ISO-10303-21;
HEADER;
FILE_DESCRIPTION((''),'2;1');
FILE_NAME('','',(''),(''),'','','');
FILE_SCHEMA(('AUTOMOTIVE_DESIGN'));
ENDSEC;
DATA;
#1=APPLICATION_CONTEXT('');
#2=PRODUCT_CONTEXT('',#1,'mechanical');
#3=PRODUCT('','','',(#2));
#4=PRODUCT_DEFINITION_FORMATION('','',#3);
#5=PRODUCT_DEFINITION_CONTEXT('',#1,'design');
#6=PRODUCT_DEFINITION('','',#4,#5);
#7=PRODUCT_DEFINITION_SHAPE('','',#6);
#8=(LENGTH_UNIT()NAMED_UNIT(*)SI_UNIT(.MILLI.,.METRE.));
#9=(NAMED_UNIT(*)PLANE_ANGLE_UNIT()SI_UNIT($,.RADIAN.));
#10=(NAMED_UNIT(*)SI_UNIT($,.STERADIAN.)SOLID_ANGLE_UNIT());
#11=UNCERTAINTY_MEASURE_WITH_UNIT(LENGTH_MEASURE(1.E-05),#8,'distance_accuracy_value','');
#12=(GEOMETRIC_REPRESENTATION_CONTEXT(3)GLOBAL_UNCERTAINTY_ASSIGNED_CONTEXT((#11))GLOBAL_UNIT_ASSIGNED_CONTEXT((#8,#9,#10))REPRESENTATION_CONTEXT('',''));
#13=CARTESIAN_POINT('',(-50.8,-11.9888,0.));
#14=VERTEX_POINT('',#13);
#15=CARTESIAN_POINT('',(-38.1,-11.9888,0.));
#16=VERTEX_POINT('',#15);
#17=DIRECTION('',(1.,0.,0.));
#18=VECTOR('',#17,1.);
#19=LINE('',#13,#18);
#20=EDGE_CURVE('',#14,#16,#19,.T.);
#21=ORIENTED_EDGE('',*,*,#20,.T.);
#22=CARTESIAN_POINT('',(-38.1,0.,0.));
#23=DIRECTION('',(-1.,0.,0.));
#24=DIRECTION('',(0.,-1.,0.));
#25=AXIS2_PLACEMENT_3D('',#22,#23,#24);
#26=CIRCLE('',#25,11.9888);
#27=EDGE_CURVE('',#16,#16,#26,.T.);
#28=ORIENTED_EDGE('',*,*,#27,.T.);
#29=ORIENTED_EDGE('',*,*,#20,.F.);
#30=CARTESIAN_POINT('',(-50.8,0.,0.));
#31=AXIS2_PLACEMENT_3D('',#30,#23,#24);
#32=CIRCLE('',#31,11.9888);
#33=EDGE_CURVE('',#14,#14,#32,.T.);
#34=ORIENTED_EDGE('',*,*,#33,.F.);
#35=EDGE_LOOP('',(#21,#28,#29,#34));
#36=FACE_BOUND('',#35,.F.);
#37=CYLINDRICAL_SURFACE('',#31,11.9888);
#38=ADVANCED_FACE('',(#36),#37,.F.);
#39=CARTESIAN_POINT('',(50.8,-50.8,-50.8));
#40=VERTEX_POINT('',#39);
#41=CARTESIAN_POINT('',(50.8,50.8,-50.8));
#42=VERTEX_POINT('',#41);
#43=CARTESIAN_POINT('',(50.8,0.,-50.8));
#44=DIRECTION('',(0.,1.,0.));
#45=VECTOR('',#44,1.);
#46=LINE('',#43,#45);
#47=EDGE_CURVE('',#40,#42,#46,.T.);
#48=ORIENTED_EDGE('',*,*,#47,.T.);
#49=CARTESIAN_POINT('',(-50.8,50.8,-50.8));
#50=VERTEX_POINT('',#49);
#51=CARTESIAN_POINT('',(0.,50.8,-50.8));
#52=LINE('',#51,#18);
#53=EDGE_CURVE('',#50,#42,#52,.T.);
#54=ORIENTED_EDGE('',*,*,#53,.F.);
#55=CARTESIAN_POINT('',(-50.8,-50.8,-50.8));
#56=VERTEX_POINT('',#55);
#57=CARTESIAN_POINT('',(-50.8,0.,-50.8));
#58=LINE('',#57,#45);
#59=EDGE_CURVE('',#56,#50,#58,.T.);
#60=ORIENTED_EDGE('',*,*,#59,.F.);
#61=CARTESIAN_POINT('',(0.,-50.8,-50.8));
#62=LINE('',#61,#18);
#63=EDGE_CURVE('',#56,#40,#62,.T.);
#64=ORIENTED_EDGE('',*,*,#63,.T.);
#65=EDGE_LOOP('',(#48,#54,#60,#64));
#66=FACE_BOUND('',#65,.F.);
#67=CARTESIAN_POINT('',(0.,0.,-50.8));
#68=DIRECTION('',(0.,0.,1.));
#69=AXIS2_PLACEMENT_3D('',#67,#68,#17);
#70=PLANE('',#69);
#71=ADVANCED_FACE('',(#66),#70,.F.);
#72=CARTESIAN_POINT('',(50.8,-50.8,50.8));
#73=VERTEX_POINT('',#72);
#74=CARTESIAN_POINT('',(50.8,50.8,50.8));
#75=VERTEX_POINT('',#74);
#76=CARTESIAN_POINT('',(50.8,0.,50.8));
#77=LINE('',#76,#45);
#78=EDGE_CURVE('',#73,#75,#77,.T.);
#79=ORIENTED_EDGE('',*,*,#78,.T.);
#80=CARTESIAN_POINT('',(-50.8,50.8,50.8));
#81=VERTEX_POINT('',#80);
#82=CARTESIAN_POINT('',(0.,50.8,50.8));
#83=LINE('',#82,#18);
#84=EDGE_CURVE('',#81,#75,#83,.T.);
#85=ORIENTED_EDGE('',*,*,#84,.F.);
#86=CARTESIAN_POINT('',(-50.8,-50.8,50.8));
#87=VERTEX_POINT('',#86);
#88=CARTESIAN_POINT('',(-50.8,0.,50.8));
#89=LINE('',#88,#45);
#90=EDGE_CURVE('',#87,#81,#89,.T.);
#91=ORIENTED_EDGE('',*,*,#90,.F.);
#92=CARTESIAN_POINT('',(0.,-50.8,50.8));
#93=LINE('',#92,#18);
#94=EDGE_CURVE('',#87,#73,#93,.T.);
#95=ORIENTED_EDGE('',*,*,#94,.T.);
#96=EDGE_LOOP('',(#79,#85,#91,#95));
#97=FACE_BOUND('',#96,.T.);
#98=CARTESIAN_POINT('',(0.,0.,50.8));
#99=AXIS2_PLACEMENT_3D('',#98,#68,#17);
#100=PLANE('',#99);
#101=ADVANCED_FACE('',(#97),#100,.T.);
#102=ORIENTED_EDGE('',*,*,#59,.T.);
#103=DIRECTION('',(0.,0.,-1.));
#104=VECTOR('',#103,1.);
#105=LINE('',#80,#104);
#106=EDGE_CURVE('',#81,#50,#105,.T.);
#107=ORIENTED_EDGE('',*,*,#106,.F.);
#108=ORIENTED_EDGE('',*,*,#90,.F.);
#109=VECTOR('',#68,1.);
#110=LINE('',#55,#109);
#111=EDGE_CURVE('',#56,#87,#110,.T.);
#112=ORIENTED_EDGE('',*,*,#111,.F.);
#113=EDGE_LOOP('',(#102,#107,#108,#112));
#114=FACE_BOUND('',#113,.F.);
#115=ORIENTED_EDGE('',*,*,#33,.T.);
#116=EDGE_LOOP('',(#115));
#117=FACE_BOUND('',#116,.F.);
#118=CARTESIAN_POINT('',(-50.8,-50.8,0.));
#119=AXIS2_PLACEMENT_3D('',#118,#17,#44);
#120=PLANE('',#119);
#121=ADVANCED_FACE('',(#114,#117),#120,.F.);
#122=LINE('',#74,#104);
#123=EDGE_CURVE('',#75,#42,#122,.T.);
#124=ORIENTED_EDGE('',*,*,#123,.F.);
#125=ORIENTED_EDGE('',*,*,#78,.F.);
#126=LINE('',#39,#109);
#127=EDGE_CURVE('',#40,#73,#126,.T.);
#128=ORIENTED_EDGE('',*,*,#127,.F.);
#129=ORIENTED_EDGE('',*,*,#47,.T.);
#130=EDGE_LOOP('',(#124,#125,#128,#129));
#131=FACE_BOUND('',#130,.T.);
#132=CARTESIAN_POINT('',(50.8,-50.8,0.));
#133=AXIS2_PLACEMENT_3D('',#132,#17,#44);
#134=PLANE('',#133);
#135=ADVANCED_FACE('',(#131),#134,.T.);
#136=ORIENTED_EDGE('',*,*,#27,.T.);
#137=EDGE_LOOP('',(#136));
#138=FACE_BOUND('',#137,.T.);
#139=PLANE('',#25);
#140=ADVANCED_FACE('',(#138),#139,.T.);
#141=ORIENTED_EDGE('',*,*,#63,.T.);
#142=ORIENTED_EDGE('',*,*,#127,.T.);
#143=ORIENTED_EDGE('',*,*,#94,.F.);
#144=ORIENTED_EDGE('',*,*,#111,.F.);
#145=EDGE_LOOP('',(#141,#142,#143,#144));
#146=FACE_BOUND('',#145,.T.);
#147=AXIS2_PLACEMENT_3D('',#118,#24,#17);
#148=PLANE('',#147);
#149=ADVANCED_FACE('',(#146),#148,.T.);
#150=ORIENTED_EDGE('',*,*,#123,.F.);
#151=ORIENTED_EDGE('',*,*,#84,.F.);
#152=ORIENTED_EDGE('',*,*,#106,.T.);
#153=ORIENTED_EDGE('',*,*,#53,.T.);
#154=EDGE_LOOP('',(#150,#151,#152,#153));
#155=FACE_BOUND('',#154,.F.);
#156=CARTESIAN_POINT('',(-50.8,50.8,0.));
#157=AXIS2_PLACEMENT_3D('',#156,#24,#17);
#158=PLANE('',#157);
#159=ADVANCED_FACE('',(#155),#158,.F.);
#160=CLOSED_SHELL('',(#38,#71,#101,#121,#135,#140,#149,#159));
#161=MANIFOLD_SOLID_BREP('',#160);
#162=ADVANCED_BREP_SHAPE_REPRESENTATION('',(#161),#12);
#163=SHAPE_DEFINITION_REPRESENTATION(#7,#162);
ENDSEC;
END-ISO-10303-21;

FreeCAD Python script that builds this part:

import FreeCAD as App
import Part
import Sketcher
Q = App.Units.Quantity


def add_polygon(sketch, points):
    """Adds a closed chain of lines whose ends are joined by coincident constraints."""
    first, n = sketch.GeometryCount, len(points)
    for a, b in zip(points, points[1:] + points[:1]):
        sketch.addGeometry(Part.LineSegment(App.Vector(*a, 0), App.Vector(*b, 0)), False)
    for i in range(n):
        sketch.addConstraint(Sketcher.Constraint("Coincident", first + i, 2, first + (i + 1) % n, 1))

doc = App.newDocument("Part")
body = doc.addObject("PartDesign::Body", "Body")

# Sketch on XY plane
sketch1 = body.newObject("Sketcher::SketchObject", "Sketch")
sketch1.AttachmentSupport = (doc.getObject("XY_Plane"), [""])
sketch1.MapMode = "FlatFace"
add_polygon(sketch1, [(-51, 51), (-51, -51), (51, -51), (51, 51)])  # lines 0-3
sketch1.addConstraint(Sketcher.Constraint("Vertical", 0))
sketch1.addConstraint(Sketcher.Constraint("Horizontal", 1))
sketch1.addConstraint(Sketcher.Constraint("Vertical", 2))
sketch1.addConstraint(Sketcher.Constraint("Horizontal", 3))
sketch1.addConstraint(Sketcher.Constraint("Symmetric", 0, 2, 2, 2, -1, 1))
sketch1.addConstraint(Sketcher.Constraint("Equal", 3, 0))
sketch1.addConstraint(Sketcher.Constraint("DistanceX", 1, 1, 1, 2, Q("4 in")))
pad1 = body.newObject("PartDesign::Pad", "Pad")
pad1.Profile = sketch1
pad1.Type = "TwoLengths"
pad1.Length = Q("2 in")
pad1.Length2 = Q("2 in")

# Sketch on YZ plane
sketch2 = body.newObject("Sketcher::SketchObject", "Sketch001")
sketch2.AttachmentSupport = (doc.getObject("YZ_Plane"), [""])
sketch2.MapMode = "FlatFace"
sketch2.AttachmentOffset = App.Placement(App.Vector(0, 0, -2 * 25.4), App.Rotation())
sketch2.addGeometry(Part.Circle(App.Vector(0, 0, 0), App.Vector(0, 0, 1), 12), False)
sketch2.addConstraint(Sketcher.Constraint("Coincident", 0, 3, -1, 1))
sketch2.addConstraint(Sketcher.Constraint("Diameter", 0, Q("0.944 in")))
pocket1 = body.newObject("PartDesign::Pocket", "Pocket")
pocket1.Profile = sketch2
pocket1.Length = Q("0.5 in")
pocket1.Reversed = True

doc.recompute()
